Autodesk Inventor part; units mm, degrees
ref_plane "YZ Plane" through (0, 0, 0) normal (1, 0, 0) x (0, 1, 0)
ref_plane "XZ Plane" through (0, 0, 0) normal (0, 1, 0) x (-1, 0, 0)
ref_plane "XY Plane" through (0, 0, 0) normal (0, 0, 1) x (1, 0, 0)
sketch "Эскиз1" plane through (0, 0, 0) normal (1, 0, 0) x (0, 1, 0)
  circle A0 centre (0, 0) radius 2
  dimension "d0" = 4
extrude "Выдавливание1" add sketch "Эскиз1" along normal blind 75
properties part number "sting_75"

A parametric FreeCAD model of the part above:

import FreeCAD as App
import Part
import Sketcher
Q = App.Units.Quantity

doc = App.newDocument("Part")
body = doc.addObject("PartDesign::Body", "Body")

sketch1 = body.newObject("Sketcher::SketchObject", "Sketch")
sketch1.AttachmentSupport = (doc.getObject("YZ_Plane"), [""])
sketch1.MapMode = "FlatFace"
sketch1.addGeometry(Part.Circle(App.Vector(0, 0, 0), App.Vector(0, 0, 1), 2), False)
sketch1.addConstraint([
    Sketcher.Constraint("Coincident", 0, 3, -1, 1),
    Sketcher.Constraint("Diameter", 0, Q("4 mm")),
])
pad1 = body.newObject("PartDesign::Pad", "Pad")
pad1.Profile = sketch1
pad1.Length = 75

doc.recompute()
